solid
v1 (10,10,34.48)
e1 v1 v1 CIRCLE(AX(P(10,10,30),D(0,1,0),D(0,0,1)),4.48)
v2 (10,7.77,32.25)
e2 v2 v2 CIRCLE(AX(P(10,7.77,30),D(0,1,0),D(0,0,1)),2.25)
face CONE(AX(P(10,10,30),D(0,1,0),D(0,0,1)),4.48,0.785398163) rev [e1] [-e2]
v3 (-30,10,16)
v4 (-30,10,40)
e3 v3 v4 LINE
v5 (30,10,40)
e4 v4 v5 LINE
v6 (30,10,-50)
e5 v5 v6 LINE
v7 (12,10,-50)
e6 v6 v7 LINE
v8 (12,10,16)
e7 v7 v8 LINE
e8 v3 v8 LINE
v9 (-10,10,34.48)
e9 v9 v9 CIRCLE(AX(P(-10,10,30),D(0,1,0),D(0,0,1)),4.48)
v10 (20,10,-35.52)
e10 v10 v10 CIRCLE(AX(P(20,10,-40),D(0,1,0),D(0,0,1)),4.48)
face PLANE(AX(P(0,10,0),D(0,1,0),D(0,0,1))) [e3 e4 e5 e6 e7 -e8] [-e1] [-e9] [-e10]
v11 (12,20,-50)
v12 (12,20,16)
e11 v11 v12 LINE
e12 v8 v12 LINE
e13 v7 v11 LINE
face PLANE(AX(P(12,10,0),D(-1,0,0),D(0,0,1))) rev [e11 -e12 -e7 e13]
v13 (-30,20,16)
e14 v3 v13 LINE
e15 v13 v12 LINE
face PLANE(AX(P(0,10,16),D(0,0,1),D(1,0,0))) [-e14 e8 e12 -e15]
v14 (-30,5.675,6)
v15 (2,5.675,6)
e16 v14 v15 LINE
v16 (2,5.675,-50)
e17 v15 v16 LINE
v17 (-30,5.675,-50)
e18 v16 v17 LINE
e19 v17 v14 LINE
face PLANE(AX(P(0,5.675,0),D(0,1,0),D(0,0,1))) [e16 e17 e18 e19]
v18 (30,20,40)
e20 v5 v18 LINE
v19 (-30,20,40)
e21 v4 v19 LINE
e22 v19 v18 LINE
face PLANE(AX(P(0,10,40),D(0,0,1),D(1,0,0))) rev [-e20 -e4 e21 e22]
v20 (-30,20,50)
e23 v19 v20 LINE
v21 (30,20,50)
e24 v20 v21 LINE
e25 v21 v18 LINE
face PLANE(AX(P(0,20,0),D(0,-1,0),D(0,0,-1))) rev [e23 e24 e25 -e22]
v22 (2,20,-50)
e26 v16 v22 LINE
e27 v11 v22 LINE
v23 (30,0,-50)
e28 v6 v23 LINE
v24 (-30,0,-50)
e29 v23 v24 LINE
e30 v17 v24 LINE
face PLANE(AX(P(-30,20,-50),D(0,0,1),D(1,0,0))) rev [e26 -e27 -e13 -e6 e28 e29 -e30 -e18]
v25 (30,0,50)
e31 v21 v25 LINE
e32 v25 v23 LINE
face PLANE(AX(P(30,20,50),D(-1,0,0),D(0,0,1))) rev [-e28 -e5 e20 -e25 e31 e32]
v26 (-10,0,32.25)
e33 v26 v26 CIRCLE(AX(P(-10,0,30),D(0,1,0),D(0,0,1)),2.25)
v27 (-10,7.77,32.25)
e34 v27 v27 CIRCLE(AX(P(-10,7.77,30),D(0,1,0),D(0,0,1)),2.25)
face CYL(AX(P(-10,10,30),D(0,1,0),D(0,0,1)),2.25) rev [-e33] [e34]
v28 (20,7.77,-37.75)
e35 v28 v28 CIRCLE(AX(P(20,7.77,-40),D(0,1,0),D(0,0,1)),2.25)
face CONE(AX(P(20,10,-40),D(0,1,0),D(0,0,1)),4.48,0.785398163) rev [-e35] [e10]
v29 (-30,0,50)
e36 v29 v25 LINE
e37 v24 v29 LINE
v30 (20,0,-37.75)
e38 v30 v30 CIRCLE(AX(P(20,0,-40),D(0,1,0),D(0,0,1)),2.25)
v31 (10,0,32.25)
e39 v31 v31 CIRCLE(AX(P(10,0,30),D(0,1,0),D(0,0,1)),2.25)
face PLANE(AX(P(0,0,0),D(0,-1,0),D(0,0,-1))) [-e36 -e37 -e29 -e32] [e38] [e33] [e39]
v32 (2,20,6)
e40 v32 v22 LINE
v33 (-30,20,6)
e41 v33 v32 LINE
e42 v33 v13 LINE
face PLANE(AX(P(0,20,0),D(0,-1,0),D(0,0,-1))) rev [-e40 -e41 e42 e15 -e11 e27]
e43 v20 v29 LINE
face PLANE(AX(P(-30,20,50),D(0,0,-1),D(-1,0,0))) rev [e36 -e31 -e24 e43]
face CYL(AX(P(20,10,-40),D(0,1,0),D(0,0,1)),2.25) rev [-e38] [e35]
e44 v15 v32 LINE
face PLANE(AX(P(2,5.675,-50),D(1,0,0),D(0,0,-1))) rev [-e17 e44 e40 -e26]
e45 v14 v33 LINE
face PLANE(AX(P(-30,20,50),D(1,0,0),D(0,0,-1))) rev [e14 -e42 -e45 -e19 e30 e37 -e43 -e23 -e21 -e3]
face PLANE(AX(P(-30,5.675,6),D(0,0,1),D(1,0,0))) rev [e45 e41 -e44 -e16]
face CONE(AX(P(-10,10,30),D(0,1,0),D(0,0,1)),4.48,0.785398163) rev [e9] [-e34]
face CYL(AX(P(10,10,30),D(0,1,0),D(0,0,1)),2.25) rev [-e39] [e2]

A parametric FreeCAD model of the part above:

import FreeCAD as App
import Part
import Sketcher
Q = App.Units.Quantity


def add_polygon(sketch, points):
    """Adds a closed chain of lines whose ends are joined by coincident constraints."""
    first, n = sketch.GeometryCount, len(points)
    for a, b in zip(points, points[1:] + points[:1]):
        sketch.addGeometry(Part.LineSegment(App.Vector(*a, 0), App.Vector(*b, 0)), False)
    for i in range(n):
        sketch.addConstraint(Sketcher.Constraint("Coincident", first + i, 2, first + (i + 1) % n, 1))

doc = App.newDocument("Part")
body = doc.addObject("PartDesign::Body", "Body")

# Sketch on XZ plane
sketch1 = doc.addObject("Sketcher::SketchObject", "Sketch")
body.addObject(sketch1)
sketch1.AttachmentSupport = (doc.XZ_Plane, [""])
sketch1.MapMode = "FlatFace"
add_polygon(sketch1, [(-30, -50), (-30, 50), (30, 50), (30, -50)])  # lines 0-3
sketch1.addConstraint([
    Sketcher.Constraint("Vertical", 0),
    Sketcher.Constraint("Horizontal", 1),
    Sketcher.Constraint("Vertical", 2),
    Sketcher.Constraint("Horizontal", 3),
    Sketcher.Constraint("Symmetric", 0, 2, 2, 2, -1, 1),
    Sketcher.Constraint("DistanceX", 1, 1, 1, 2, Q("60 mm")),
    Sketcher.Constraint("DistanceY", 0, 1, 0, 2, Q("100 mm")),
])
pad1 = doc.addObject("PartDesign::Pad", "Pad")
body.addObject(pad1)
pad1.Profile = sketch1
pad1.Length = 20
pad1.Reversed = True

# Sketch on XZ plane
sketch2 = doc.addObject("Sketcher::SketchObject", "Sketch001")
body.addObject(sketch2)
sketch2.AttachmentSupport = (doc.XZ_Plane, [""])
sketch2.MapMode = "FlatFace"
sketch2.AttachmentOffset = App.Placement(App.Vector(0, 0, -20), App.Rotation())
add_polygon(sketch2, [(-30, -50), (-30, 6), (2, 6), (2, -50)])  # lines 0-3
sketch2.addConstraint([
    Sketcher.Constraint("Vertical", 0),
    Sketcher.Constraint("Horizontal", 1),
    Sketcher.Constraint("Vertical", 2),
    Sketcher.Constraint("Horizontal", 3),
    Sketcher.Constraint("DistanceX", 1, 1, 1, 2, Q("32 mm")),
    Sketcher.Constraint("DistanceY", 0, 1, 0, 2, Q("56 mm")),
    Sketcher.Constraint("DistanceX", 0, 2, -1, 1, Q("30 mm")),
    Sketcher.Constraint("DistanceY", -1, 1, 0, 2, Q("6 mm")),
])
pocket1 = doc.addObject("PartDesign::Pocket", "Pocket")
body.addObject(pocket1)
pocket1.Profile = sketch2
pocket1.Length = 14.325
pocket1.Reversed = True

# Sketch on XZ plane
sketch3 = doc.addObject("Sketcher::SketchObject", "Sketch002")
body.addObject(sketch3)
sketch3.AttachmentSupport = (doc.XZ_Plane, [""])
sketch3.MapMode = "FlatFace"
sketch3.AttachmentOffset = App.Placement(App.Vector(0, 0, -20), App.Rotation())
add_polygon(sketch3, [(30, -50), (12, -50), (12, 16), (-30, 16), (-30, 40), (30, 40)])  # lines 0-5
sketch3.addConstraint([
    Sketcher.Constraint("Horizontal", 0),
    Sketcher.Constraint("Vertical", 1),
    Sketcher.Constraint("Horizontal", 2),
    Sketcher.Constraint("Vertical", 3),
    Sketcher.Constraint("Horizontal", 4),
    Sketcher.Constraint("Vertical", 5),
    Sketcher.Constraint("DistanceX", 0, 2, 0, 1, Q("18 mm")),
    Sketcher.Constraint("DistanceX", 2, 2, 2, 1, Q("42 mm")),
    Sketcher.Constraint("DistanceY", 1, 1, 1, 2, Q("66 mm")),
    Sketcher.Constraint("DistanceY", 3, 1, 3, 2, Q("24 mm")),
    Sketcher.Constraint("DistanceX", -1, 1, 0, 2, Q("12 mm")),
    Sketcher.Constraint("DistanceY", 0, 2, -1, 1, Q("50 mm")),
])
pocket2 = doc.addObject("PartDesign::Pocket", "Pocket001")
body.addObject(pocket2)
pocket2.Profile = sketch3
pocket2.Length = 10
pocket2.Reversed = True

# Sketch on XZ plane
sketch4 = doc.addObject("Sketcher::SketchObject", "Sketch003")
body.addObject(sketch4)
sketch4.AttachmentSupport = (doc.XZ_Plane, [""])
sketch4.MapMode = "FlatFace"
sketch4.AttachmentOffset = App.Placement(App.Vector(0, 0, -10), App.Rotation())
sketch4.addGeometry([
    Part.Circle(App.Vector(20, -40, 0), App.Vector(0, 0, 1), 2.2),
    Part.Circle(App.Vector(10, 30, 0), App.Vector(0, 0, 1), 2.2),
    Part.Circle(App.Vector(-10, 30, 0), App.Vector(0, 0, 1), 2.2),
], False)
sketch4.addConstraint([
    Sketcher.Constraint("Equal", 0, 1),
    Sketcher.Constraint("Equal", 1, 2),
    Sketcher.Constraint("Symmetric", 1, 3, 2, 3, -2),
    Sketcher.Constraint("Diameter", 0, Q("4.5 mm")),
    Sketcher.Constraint("DistanceX", -1, 1, 0, 3, Q("20 mm")),
    Sketcher.Constraint("DistanceY", 0, 3, -1, 1, Q("40 mm")),
    Sketcher.Constraint("DistanceX", -1, 1, 1, 3, Q("10 mm")),
    Sketcher.Constraint("DistanceY", -1, 1, 1, 3, Q("30 mm")),
])
doc.recompute()
hole = doc.addObject("PartDesign::Hole", "Hole")
body.addObject(hole)
hole.Profile = sketch4
hole.ThreadType = "None"
hole.Diameter = 4.5
hole.DepthType = "ThroughAll"
hole.HoleCutType = "Countersink"
hole.HoleCutDiameter = 8.96
hole.HoleCutCountersinkAngle = 90
hole.Reversed = True

doc.recompute()
